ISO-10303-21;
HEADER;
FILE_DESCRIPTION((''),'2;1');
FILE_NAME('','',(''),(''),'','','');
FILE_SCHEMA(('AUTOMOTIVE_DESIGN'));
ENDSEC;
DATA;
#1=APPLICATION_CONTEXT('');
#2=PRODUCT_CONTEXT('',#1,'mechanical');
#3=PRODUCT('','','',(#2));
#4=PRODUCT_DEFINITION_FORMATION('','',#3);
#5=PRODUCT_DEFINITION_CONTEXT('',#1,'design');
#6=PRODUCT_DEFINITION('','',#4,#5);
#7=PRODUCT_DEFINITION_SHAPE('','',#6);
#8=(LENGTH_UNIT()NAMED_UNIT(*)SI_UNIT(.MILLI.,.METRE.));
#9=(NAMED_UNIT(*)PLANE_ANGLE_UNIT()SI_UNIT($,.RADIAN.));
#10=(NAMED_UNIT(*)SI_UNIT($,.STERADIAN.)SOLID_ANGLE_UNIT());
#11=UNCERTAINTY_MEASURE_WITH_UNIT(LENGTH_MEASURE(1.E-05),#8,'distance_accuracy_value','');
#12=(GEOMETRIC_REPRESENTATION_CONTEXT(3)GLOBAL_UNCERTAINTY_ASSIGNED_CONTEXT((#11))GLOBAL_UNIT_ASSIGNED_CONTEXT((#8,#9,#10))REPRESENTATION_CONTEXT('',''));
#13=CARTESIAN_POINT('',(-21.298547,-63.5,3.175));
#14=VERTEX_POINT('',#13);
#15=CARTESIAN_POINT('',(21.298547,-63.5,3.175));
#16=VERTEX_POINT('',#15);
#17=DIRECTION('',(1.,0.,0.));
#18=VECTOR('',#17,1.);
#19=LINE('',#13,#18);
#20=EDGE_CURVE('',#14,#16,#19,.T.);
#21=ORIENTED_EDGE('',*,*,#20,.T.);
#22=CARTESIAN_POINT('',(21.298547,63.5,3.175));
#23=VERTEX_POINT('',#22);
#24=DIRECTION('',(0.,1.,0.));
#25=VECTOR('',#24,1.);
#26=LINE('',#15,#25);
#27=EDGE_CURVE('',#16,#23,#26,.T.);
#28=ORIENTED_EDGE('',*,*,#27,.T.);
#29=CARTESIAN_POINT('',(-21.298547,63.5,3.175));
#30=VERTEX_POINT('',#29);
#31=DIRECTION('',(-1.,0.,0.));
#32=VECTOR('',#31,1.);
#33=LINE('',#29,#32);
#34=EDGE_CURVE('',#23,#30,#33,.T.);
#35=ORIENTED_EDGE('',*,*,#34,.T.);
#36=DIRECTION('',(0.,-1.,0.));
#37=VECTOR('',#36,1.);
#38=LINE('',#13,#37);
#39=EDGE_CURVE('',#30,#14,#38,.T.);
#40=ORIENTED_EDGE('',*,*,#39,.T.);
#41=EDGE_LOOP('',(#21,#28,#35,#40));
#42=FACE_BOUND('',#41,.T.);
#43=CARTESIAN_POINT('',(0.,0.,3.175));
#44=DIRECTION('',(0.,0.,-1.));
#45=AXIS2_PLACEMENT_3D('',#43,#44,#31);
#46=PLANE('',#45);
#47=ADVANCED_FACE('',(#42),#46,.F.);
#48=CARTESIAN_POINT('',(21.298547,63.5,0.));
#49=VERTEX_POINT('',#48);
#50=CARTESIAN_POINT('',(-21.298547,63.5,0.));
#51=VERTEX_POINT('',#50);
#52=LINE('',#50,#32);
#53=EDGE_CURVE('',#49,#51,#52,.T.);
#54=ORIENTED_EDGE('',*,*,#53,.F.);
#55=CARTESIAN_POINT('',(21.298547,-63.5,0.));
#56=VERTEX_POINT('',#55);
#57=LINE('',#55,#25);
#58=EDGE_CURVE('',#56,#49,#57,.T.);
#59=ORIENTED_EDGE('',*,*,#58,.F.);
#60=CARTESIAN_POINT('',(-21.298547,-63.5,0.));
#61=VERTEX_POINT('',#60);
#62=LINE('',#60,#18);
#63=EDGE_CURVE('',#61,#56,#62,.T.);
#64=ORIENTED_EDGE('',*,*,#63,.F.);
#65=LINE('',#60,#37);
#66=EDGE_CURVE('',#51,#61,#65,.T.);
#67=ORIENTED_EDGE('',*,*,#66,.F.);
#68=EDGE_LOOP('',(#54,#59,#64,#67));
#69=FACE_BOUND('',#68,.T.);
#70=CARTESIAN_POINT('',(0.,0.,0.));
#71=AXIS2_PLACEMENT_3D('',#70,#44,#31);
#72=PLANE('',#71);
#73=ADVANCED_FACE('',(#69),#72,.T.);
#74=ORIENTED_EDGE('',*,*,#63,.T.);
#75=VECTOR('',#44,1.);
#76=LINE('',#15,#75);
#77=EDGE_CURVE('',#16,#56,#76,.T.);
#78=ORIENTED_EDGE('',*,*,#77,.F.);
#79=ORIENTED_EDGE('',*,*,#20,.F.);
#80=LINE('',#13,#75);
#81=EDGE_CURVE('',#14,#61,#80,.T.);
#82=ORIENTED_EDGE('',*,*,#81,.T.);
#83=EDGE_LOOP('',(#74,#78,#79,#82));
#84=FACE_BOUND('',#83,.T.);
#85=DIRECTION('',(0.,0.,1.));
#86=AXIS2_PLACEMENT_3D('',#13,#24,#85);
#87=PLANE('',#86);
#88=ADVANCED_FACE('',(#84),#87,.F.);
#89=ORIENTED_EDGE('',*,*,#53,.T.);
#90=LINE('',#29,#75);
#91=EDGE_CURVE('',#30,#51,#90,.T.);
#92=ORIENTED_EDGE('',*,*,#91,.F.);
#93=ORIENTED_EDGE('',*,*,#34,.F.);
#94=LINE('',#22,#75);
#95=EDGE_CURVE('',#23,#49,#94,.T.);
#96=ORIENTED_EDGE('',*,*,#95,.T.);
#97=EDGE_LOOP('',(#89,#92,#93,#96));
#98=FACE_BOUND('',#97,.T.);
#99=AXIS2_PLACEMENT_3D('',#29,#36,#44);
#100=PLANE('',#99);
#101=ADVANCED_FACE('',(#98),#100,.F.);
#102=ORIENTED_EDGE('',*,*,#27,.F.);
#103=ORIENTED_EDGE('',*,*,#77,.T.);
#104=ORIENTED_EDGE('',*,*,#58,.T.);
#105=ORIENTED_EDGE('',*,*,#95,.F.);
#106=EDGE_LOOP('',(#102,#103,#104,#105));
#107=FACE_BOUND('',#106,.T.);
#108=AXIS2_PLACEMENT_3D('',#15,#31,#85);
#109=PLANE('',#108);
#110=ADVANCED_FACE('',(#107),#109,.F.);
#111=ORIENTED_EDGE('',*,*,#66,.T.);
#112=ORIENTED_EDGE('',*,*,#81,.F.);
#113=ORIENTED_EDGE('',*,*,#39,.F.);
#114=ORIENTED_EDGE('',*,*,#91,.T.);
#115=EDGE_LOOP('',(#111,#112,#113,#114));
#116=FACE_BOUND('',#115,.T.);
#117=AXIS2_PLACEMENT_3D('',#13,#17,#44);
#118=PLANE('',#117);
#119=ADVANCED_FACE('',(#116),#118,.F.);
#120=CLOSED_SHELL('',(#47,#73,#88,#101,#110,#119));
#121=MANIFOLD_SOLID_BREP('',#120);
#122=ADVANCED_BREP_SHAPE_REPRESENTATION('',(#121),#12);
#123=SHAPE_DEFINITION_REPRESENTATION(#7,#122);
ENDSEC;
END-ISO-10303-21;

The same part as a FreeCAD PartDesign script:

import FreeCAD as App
import Part
import Sketcher

V = App.Vector
Q = App.Units.Quantity

doc = App.newDocument("Part")
body = doc.addObject("PartDesign::Body", "Body")

# Sketch on XY plane
sketch1 = body.newObject("Sketcher::SketchObject", "Sketch")
sketch1.AttachmentSupport = (doc.getObject("XY_Plane"), [""])
sketch1.MapMode = "FlatFace"
sketch1.addGeometry(Part.LineSegment(V(-21.298547, 63.5, 0), V(-21.298547, -63.5, 0)), False)
sketch1.addGeometry(Part.LineSegment(V(-21.298547, -63.5, 0), V(21.298547, -63.5, 0)), False)
sketch1.addGeometry(Part.LineSegment(V(21.298547, -63.5, 0), V(21.298547, 63.5, 0)), False)
sketch1.addGeometry(Part.LineSegment(V(21.298547, 63.5, 0), V(-21.298547, 63.5, 0)), False)
sketch1.addConstraint(Sketcher.Constraint("Coincident", 0, 2, 1, 1))
sketch1.addConstraint(Sketcher.Constraint("Coincident", 1, 2, 2, 1))
sketch1.addConstraint(Sketcher.Constraint("Coincident", 2, 2, 3, 1))
sketch1.addConstraint(Sketcher.Constraint("Coincident", 3, 2, 0, 1))
sketch1.addConstraint(Sketcher.Constraint("Vertical", 0))
sketch1.addConstraint(Sketcher.Constraint("Horizontal", 1))
sketch1.addConstraint(Sketcher.Constraint("Vertical", 2))
sketch1.addConstraint(Sketcher.Constraint("Horizontal", 3))
sketch1.addConstraint(Sketcher.Constraint("Symmetric", 0, 2, 2, 2, -1, 1))
sketch1.addConstraint(Sketcher.Constraint("DistanceY", 0, 2, 0, 1, Q("5 in")))
sketch1.addConstraint(Sketcher.Constraint("DistanceX", 1, 1, 1, 2, 42.597095))
pad1 = body.newObject("PartDesign::Pad", "Pad")
pad1.Profile = sketch1
pad1.Length = Q("0.125 in")

doc.recompute()
